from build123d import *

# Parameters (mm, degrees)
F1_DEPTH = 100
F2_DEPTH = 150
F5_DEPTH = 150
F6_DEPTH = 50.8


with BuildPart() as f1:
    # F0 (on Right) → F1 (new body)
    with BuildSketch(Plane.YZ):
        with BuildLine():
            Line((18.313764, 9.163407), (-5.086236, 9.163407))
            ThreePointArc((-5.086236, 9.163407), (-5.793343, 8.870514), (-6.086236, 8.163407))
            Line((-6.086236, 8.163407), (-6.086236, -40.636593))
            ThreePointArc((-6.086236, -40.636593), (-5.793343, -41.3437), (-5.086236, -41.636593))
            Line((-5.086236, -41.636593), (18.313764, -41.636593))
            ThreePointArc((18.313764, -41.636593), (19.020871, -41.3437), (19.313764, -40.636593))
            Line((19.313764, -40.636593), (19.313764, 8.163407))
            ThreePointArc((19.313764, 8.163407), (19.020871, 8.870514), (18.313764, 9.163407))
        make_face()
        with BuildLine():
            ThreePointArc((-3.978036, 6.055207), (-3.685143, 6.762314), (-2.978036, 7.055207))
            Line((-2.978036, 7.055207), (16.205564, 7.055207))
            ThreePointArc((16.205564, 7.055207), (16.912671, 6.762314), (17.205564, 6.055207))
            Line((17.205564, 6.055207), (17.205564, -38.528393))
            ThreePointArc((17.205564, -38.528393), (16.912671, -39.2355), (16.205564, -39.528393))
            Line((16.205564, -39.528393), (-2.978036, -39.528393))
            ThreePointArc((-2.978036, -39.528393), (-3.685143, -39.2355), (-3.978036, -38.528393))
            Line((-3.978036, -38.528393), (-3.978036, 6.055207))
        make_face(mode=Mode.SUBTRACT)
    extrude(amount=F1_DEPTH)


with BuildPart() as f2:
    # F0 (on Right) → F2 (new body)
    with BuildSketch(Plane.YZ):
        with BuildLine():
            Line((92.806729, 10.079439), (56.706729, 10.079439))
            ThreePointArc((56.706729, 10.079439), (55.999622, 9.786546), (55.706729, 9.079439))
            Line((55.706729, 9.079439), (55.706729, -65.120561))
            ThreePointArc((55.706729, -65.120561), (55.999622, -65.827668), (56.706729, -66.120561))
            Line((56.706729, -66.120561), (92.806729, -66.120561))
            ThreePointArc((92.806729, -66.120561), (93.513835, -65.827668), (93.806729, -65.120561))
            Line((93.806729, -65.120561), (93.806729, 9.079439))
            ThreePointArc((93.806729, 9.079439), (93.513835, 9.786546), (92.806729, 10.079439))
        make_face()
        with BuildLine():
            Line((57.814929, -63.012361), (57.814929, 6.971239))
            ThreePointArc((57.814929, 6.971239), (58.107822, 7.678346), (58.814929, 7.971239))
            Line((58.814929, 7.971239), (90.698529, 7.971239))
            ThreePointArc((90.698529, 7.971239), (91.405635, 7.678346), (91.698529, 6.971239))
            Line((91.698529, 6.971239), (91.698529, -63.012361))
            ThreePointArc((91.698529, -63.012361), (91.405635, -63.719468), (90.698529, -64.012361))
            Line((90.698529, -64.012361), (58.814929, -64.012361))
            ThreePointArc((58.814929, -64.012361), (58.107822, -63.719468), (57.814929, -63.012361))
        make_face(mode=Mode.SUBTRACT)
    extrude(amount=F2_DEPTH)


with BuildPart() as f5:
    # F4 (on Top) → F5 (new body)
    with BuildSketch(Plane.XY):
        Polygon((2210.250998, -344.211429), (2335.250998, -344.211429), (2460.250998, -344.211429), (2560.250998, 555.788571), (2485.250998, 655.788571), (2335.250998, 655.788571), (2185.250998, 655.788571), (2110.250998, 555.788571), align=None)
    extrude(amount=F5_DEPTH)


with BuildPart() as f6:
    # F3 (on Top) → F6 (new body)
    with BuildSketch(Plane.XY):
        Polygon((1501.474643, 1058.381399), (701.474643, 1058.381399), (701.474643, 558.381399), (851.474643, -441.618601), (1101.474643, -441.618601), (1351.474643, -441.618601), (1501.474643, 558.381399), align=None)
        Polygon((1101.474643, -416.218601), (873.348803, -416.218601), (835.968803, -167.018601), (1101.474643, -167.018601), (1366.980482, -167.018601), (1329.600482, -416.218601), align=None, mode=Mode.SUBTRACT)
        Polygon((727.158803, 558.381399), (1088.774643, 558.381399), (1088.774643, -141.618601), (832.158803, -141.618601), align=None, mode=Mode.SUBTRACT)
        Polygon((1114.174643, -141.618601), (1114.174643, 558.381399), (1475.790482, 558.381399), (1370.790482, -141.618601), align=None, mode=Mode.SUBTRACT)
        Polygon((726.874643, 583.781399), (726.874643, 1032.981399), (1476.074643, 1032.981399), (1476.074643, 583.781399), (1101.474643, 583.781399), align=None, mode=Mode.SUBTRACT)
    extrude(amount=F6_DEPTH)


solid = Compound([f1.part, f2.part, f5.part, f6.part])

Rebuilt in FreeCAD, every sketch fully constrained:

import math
import FreeCAD as App
import Part
import Sketcher
from FreeCAD import Vector

doc = App.newDocument("Part")
params = doc.addObject("Spreadsheet::Sheet", "Params")
for row, (alias, value) in enumerate([
    ("sketch1_radius", "0.999999 mm"),
    ("sketch1_width", "23.4 mm"),
    ("sketch1_height", "48.8 mm"),
    ("pad1_length", "100 mm"),
    ("sketch2_radius", "0.999999 mm"),
    ("sketch2_width", "36.1 mm"),
    ("sketch2_height", "74.2 mm"),
    ("pad2_length", "150 mm"),
    ("sketch3_width", "250 mm"),
    ("sketch3_width2", "300 mm"),
    ("sketch3_length", "125 mm"),
    ("pad3_length", "150 mm"),
    ("sketch4_width", "800 mm"),
    ("sketch4_width2", "500 mm"),
    ("sketch4_height", "700 mm"),
    ("sketch4_width3", "749.2 mm"),
    ("sketch4_height2", "449.2 mm"),
    ("pad4_length", "50.8 mm"),
], start=1):
    params.set(f"A{row}", alias)
    params.set(f"B{row}", "=" + value)
    params.setAlias(f"B{row}", alias)

body = doc.addObject("PartDesign::Body", "Body")

# Sketch on YZ plane
sketch1 = body.newObject("Sketcher::SketchObject", "Sketch")
sketch1.AttachmentSupport = (doc.getObject("YZ_Plane"), [""])
sketch1.MapMode = "FlatFace"
sketch1.addGeometry(Part.LineSegment(Vector(18.3, 9.2, 0), Vector(-5.1, 9.2, 0)), False)
sketch1.addGeometry(Part.ArcOfCircle(Part.Circle(Vector(-5.1, 8.2, 0), Vector(0, 0, 1), 1), math.radians(90), math.radians(180)), False)
sketch1.addGeometry(Part.LineSegment(Vector(-6.1, 8.2, 0), Vector(-6.1, -40.6, 0)), False)
sketch1.addGeometry(Part.ArcOfCircle(Part.Circle(Vector(-5.1, -40.6, 0), Vector(0, 0, 1), 1), math.radians(180), math.radians(270)), False)
sketch1.addGeometry(Part.LineSegment(Vector(-5.1, -41.6, 0), Vector(18.3, -41.6, 0)), False)
sketch1.addGeometry(Part.ArcOfCircle(Part.Circle(Vector(18.3, -40.6, 0), Vector(0, 0, 1), 1), math.radians(-90), math.radians(0)), False)
sketch1.addGeometry(Part.LineSegment(Vector(19.3, -40.6, 0), Vector(19.3, 8.2, 0)), False)
sketch1.addGeometry(Part.ArcOfCircle(Part.Circle(Vector(18.3, 8.2, 0), Vector(0, 0, 1), 1), math.radians(0), math.radians(90)), False)
sketch1.addGeometry(Part.LineSegment(Vector(-4, -38.5, 0), Vector(-4, 6.1, 0)), False)
sketch1.addGeometry(Part.ArcOfCircle(Part.Circle(Vector(-3, 6.1, 0), Vector(0, 0, 1), 1), math.radians(90), math.radians(180)), False)
sketch1.addGeometry(Part.LineSegment(Vector(-3, 7.1, 0), Vector(16.2, 7.1, 0)), False)
sketch1.addGeometry(Part.ArcOfCircle(Part.Circle(Vector(16.2, 6.1, 0), Vector(0, 0, 1), 1), math.radians(0), math.radians(90)), False)
sketch1.addGeometry(Part.LineSegment(Vector(17.2, 6.1, 0), Vector(17.2, -38.5, 0)), False)
sketch1.addGeometry(Part.ArcOfCircle(Part.Circle(Vector(16.2, -38.5, 0), Vector(0, 0, 1), 1), math.radians(-90), math.radians(0)), False)
sketch1.addGeometry(Part.LineSegment(Vector(16.2, -39.5, 0), Vector(-3, -39.5, 0)), False)
sketch1.addGeometry(Part.ArcOfCircle(Part.Circle(Vector(-3, -38.5, 0), Vector(0, 0, 1), 1), math.radians(180), math.radians(270)), False)
sketch1.addConstraint(Sketcher.Constraint("Tangent", 0, 2, 1, 1))
sketch1.addConstraint(Sketcher.Constraint("Tangent", 1, 2, 2, 1))
sketch1.addConstraint(Sketcher.Constraint("Tangent", 2, 2, 3, 1))
sketch1.addConstraint(Sketcher.Constraint("Tangent", 3, 2, 4, 1))
sketch1.addConstraint(Sketcher.Constraint("Tangent", 4, 2, 5, 1))
sketch1.addConstraint(Sketcher.Constraint("Tangent", 5, 2, 6, 1))
sketch1.addConstraint(Sketcher.Constraint("Tangent", 6, 2, 7, 1))
sketch1.addConstraint(Sketcher.Constraint("Tangent", 7, 2, 0, 1))
sketch1.addConstraint(Sketcher.Constraint("Tangent", 8, 2, 9, 2))
sketch1.addConstraint(Sketcher.Constraint("Tangent", 9, 1, 10, 1))
sketch1.addConstraint(Sketcher.Constraint("Tangent", 10, 2, 11, 2))
sketch1.addConstraint(Sketcher.Constraint("Tangent", 11, 1, 12, 1))
sketch1.addConstraint(Sketcher.Constraint("Tangent", 12, 2, 13, 2))
sketch1.addConstraint(Sketcher.Constraint("Tangent", 13, 1, 14, 1))
sketch1.addConstraint(Sketcher.Constraint("Tangent", 14, 2, 15, 2))
sketch1.addConstraint(Sketcher.Constraint("Tangent", 15, 1, 8, 1))
sketch1.addConstraint(Sketcher.Constraint("Horizontal", 0))
sketch1.addConstraint(Sketcher.Constraint("Vertical", 2))
sketch1.addConstraint(Sketcher.Constraint("Horizontal", 4))
sketch1.addConstraint(Sketcher.Constraint("Vertical", 6))
sketch1.addConstraint(Sketcher.Constraint("Vertical", 8))
sketch1.addConstraint(Sketcher.Constraint("Horizontal", 10))
sketch1.addConstraint(Sketcher.Constraint("Vertical", 12))
sketch1.addConstraint(Sketcher.Constraint("Horizontal", 14))
sketch1.addConstraint(Sketcher.Constraint("Equal", 1, 3))
sketch1.addConstraint(Sketcher.Constraint("Equal", 3, 5))
sketch1.addConstraint(Sketcher.Constraint("Equal", 5, 7))
sketch1.addConstraint(Sketcher.Constraint("Equal", 7, 9))
sketch1.addConstraint(Sketcher.Constraint("Equal", 9, 11))
sketch1.addConstraint(Sketcher.Constraint("Equal", 11, 13))
sketch1.addConstraint(Sketcher.Constraint("Equal", 13, 15))
sketch1.addConstraint(Sketcher.Constraint("Radius", 1, 0.999999))
sketch1.addConstraint(Sketcher.Constraint("DistanceX", 0, 2, 0, 1, 23.4))
sketch1.addConstraint(Sketcher.Constraint("DistanceY", 2, 2, 2, 1, 48.8))
sketch1.addConstraint(Sketcher.Constraint("DistanceX", 10, 1, 10, 2, 19.1836))
sketch1.addConstraint(Sketcher.Constraint("DistanceY", 8, 1, 8, 2, 44.5836))
sketch1.addConstraint(Sketcher.Constraint("DistanceX", 1, 3, 9, 3, 2.1082))
sketch1.addConstraint(Sketcher.Constraint("DistanceY", 9, 3, 1, 3, 2.1082))
sketch1.addConstraint(Sketcher.Constraint("DistanceX", 1, 3, -1, 1, 5.086237))
sketch1.addConstraint(Sketcher.Constraint("DistanceY", -1, 1, 1, 3, 8.163408))
sketch1.setExpression("Constraints[31]", "Params.sketch1_radius")
sketch1.setExpression("Constraints[32]", "Params.sketch1_width")
sketch1.setExpression("Constraints[33]", "Params.sketch1_height")
pad1 = body.newObject("PartDesign::Pad", "Pad")
pad1.Profile = sketch1
pad1.setExpression("Length", "Params.pad1_length")
body2 = doc.addObject("PartDesign::Body", "Body001")

# Sketch on YZ plane
sketch2 = body2.newObject("Sketcher::SketchObject", "Sketch001")
sketch2.AttachmentSupport = (doc.getObject("YZ_Plane001"), [""])
sketch2.MapMode = "FlatFace"
sketch2.addGeometry(Part.LineSegment(Vector(92.8, 10.1, 0), Vector(56.7, 10.1, 0)), False)
sketch2.addGeometry(Part.ArcOfCircle(Part.Circle(Vector(56.7, 9.1, 0), Vector(0, 0, 1), 1), math.radians(90), math.radians(180)), False)
sketch2.addGeometry(Part.LineSegment(Vector(55.7, 9.1, 0), Vector(55.7, -65.1, 0)), False)
sketch2.addGeometry(Part.ArcOfCircle(Part.Circle(Vector(56.7, -65.1, 0), Vector(0, 0, 1), 1), math.radians(180), math.radians(270)), False)
sketch2.addGeometry(Part.LineSegment(Vector(56.7, -66.1, 0), Vector(92.8, -66.1, 0)), False)
sketch2.addGeometry(Part.ArcOfCircle(Part.Circle(Vector(92.8, -65.1, 0), Vector(0, 0, 1), 1), math.radians(-90), math.radians(0)), False)
sketch2.addGeometry(Part.LineSegment(Vector(93.8, -65.1, 0), Vector(93.8, 9.1, 0)), False)
sketch2.addGeometry(Part.ArcOfCircle(Part.Circle(Vector(92.8, 9.1, 0), Vector(0, 0, 1), 1), math.radians(0), math.radians(90)), False)
sketch2.addGeometry(Part.ArcOfCircle(Part.Circle(Vector(58.8, -63, 0), Vector(0, 0, 1), 1), math.radians(180), math.radians(270)), False)
sketch2.addGeometry(Part.LineSegment(Vector(57.8, -63, 0), Vector(57.8, 7, 0)), False)
sketch2.addGeometry(Part.ArcOfCircle(Part.Circle(Vector(58.8, 7, 0), Vector(0, 0, 1), 1), math.radians(90), math.radians(180)), False)
sketch2.addGeometry(Part.LineSegment(Vector(58.8, 8, 0), Vector(90.7, 8, 0)), False)
sketch2.addGeometry(Part.ArcOfCircle(Part.Circle(Vector(90.7, 7, 0), Vector(0, 0, 1), 1), math.radians(0), math.radians(90)), False)
sketch2.addGeometry(Part.LineSegment(Vector(91.7, 7, 0), Vector(91.7, -63, 0)), False)
sketch2.addGeometry(Part.ArcOfCircle(Part.Circle(Vector(90.7, -63, 0), Vector(0, 0, 1), 1), math.radians(-90), math.radians(0)), False)
sketch2.addGeometry(Part.LineSegment(Vector(90.7, -64, 0), Vector(58.8, -64, 0)), False)
sketch2.addConstraint(Sketcher.Constraint("Tangent", 0, 2, 1, 1))
sketch2.addConstraint(Sketcher.Constraint("Tangent", 1, 2, 2, 1))
sketch2.addConstraint(Sketcher.Constraint("Tangent", 2, 2, 3, 1))
sketch2.addConstraint(Sketcher.Constraint("Tangent", 3, 2, 4, 1))
sketch2.addConstraint(Sketcher.Constraint("Tangent", 4, 2, 5, 1))
sketch2.addConstraint(Sketcher.Constraint("Tangent", 5, 2, 6, 1))
sketch2.addConstraint(Sketcher.Constraint("Tangent", 6, 2, 7, 1))
sketch2.addConstraint(Sketcher.Constraint("Tangent", 7, 2, 0, 1))
sketch2.addConstraint(Sketcher.Constraint("Tangent", 8, 1, 9, 1))
sketch2.addConstraint(Sketcher.Constraint("Tangent", 9, 2, 10, 2))
sketch2.addConstraint(Sketcher.Constraint("Tangent", 10, 1, 11, 1))
sketch2.addConstraint(Sketcher.Constraint("Tangent", 11, 2, 12, 2))
sketch2.addConstraint(Sketcher.Constraint("Tangent", 12, 1, 13, 1))
sketch2.addConstraint(Sketcher.Constraint("Tangent", 13, 2, 14, 2))
sketch2.addConstraint(Sketcher.Constraint("Tangent", 14, 1, 15, 1))
sketch2.addConstraint(Sketcher.Constraint("Tangent", 15, 2, 8, 2))
sketch2.addConstraint(Sketcher.Constraint("Horizontal", 0))
sketch2.addConstraint(Sketcher.Constraint("Vertical", 2))
sketch2.addConstraint(Sketcher.Constraint("Horizontal", 4))
sketch2.addConstraint(Sketcher.Constraint("Vertical", 6))
sketch2.addConstraint(Sketcher.Constraint("Vertical", 9))
sketch2.addConstraint(Sketcher.Constraint("Horizontal", 11))
sketch2.addConstraint(Sketcher.Constraint("Vertical", 13))
sketch2.addConstraint(Sketcher.Constraint("Horizontal", 15))
sketch2.addConstraint(Sketcher.Constraint("Equal", 1, 3))
sketch2.addConstraint(Sketcher.Constraint("Equal", 3, 5))
sketch2.addConstraint(Sketcher.Constraint("Equal", 5, 7))
sketch2.addConstraint(Sketcher.Constraint("Equal", 7, 8))
sketch2.addConstraint(Sketcher.Constraint("Equal", 8, 10))
sketch2.addConstraint(Sketcher.Constraint("Equal", 10, 12))
sketch2.addConstraint(Sketcher.Constraint("Equal", 12, 14))
sketch2.addConstraint(Sketcher.Constraint("Radius", 1, 0.999999))
sketch2.addConstraint(Sketcher.Constraint("DistanceX", 0, 2, 0, 1, 36.1))
sketch2.addConstraint(Sketcher.Constraint("DistanceY", 2, 2, 2, 1, 74.2))
sketch2.addConstraint(Sketcher.Constraint("DistanceX", 11, 1, 11, 2, 31.8836))
sketch2.addConstraint(Sketcher.Constraint("DistanceY", 9, 1, 9, 2, 69.9836))
sketch2.addConstraint(Sketcher.Constraint("DistanceX", 3, 3, 8, 3, 2.1082))
sketch2.addConstraint(Sketcher.Constraint("DistanceY", 3, 3, 8, 3, 2.1082))
sketch2.addConstraint(Sketcher.Constraint("DistanceX", -1, 1, 1, 3, 56.706728))
sketch2.addConstraint(Sketcher.Constraint("DistanceY", -1, 1, 1, 3, 9.07944))
sketch2.setExpression("Constraints[31]", "Params.sketch2_radius")
sketch2.setExpression("Constraints[32]", "Params.sketch2_width")
sketch2.setExpression("Constraints[33]", "Params.sketch2_height")
pad2 = body2.newObject("PartDesign::Pad", "Pad001")
pad2.Profile = sketch2
pad2.setExpression("Length", "Params.pad2_length")
body3 = doc.addObject("PartDesign::Body", "Body002")

# Sketch on XY plane
sketch3 = body3.newObject("Sketcher::SketchObject", "Sketch002")
sketch3.AttachmentSupport = (doc.getObject("XY_Plane002"), [""])
sketch3.MapMode = "FlatFace"
sketch3.addGeometry(Part.LineSegment(Vector(2210, -344, 0), Vector(2460, -344, 0)), False)
sketch3.addGeometry(Part.LineSegment(Vector(2460, -344, 0), Vector(2560, 556, 0)), False)
sketch3.addGeometry(Part.LineSegment(Vector(2560, 556, 0), Vector(2485, 656, 0)), False)
sketch3.addGeometry(Part.LineSegment(Vector(2485, 656, 0), Vector(2185, 656, 0)), False)
sketch3.addGeometry(Part.LineSegment(Vector(2185, 656, 0), Vector(2110, 556, 0)), False)
sketch3.addGeometry(Part.LineSegment(Vector(2110, 556, 0), Vector(2210, -344, 0)), False)
sketch3.addConstraint(Sketcher.Constraint("Coincident", 0, 2, 1, 1))
sketch3.addConstraint(Sketcher.Constraint("Coincident", 1, 2, 2, 1))
sketch3.addConstraint(Sketcher.Constraint("Coincident", 2, 2, 3, 1))
sketch3.addConstraint(Sketcher.Constraint("Coincident", 3, 2, 4, 1))
sketch3.addConstraint(Sketcher.Constraint("Coincident", 4, 2, 5, 1))
sketch3.addConstraint(Sketcher.Constraint("Coincident", 5, 2, 0, 1))
sketch3.addConstraint(Sketcher.Constraint("Horizontal", 0))
sketch3.addConstraint(Sketcher.Constraint("Horizontal", 3))
sketch3.addConstraint(Sketcher.Constraint("Horizontal", 1, 2, 4, 2))
sketch3.addConstraint(Sketcher.Constraint("Equal", 2, 4))
sketch3.addConstraint(Sketcher.Constraint("Equal", 1, 5))
sketch3.addConstraint(Sketcher.Constraint("DistanceX", 0, 1, 0, 2, 250.0))
sketch3.addConstraint(Sketcher.Constraint("DistanceX", 3, 2, 3, 1, 300.0))
sketch3.addConstraint(Sketcher.Constraint("Distance", 2, 125.0))
sketch3.addConstraint(Sketcher.Constraint("DistanceX", 0, 2, 1, 2, 100.0))
sketch3.addConstraint(Sketcher.Constraint("DistanceY", 0, 2, 1, 2, 900.0))
sketch3.addConstraint(Sketcher.Constraint("DistanceY", 0, 2, -1, 1, 344.211429))
sketch3.addConstraint(Sketcher.Constraint("DistanceX", -1, 1, 0, 2, 2460.250998))
sketch3.setExpression("Constraints[11]", "Params.sketch3_width")
sketch3.setExpression("Constraints[12]", "Params.sketch3_width2")
sketch3.setExpression("Constraints[13]", "Params.sketch3_length")
pad3 = body3.newObject("PartDesign::Pad", "Pad002")
pad3.Profile = sketch3
pad3.setExpression("Length", "Params.pad3_length")
body4 = doc.addObject("PartDesign::Body", "Body003")

# Sketch on XY plane
sketch4 = body4.newObject("Sketcher::SketchObject", "Sketch003")
sketch4.AttachmentSupport = (doc.getObject("XY_Plane003"), [""])
sketch4.MapMode = "FlatFace"
sketch4.addGeometry(Part.LineSegment(Vector(1501, 1058, 0), Vector(701, 1058, 0)), False)
sketch4.addGeometry(Part.LineSegment(Vector(701, 1058, 0), Vector(701, 558, 0)), False)
sketch4.addGeometry(Part.LineSegment(Vector(701, 558, 0), Vector(851, -442, 0)), False)
sketch4.addGeometry(Part.LineSegment(Vector(851, -442, 0), Vector(1351, -442, 0)), False)
sketch4.addGeometry(Part.LineSegment(Vector(1351, -442, 0), Vector(1501, 558, 0)), False)
sketch4.addGeometry(Part.LineSegment(Vector(1501, 558, 0), Vector(1501, 1058, 0)), False)
sketch4.addGeometry(Part.LineSegment(Vector(1330, -416, 0), Vector(873, -416, 0)), False)
sketch4.addGeometry(Part.LineSegment(Vector(873, -416, 0), Vector(836, -167, 0)), False)
sketch4.addGeometry(Part.LineSegment(Vector(836, -167, 0), Vector(1367, -167, 0)), False)
sketch4.addGeometry(Part.LineSegment(Vector(1367, -167, 0), Vector(1330, -416, 0)), False)
sketch4.addGeometry(Part.LineSegment(Vector(832, -142, 0), Vector(727, 558, 0)), False)
sketch4.addGeometry(Part.LineSegment(Vector(727, 558, 0), Vector(1089, 558, 0)), False)
sketch4.addGeometry(Part.LineSegment(Vector(1089, 558, 0), Vector(1089, -142, 0)), False)
sketch4.addGeometry(Part.LineSegment(Vector(1089, -142, 0), Vector(832, -142, 0)), False)
sketch4.addGeometry(Part.LineSegment(Vector(1371, -142, 0), Vector(1114, -142, 0)), False)
sketch4.addGeometry(Part.LineSegment(Vector(1114, -142, 0), Vector(1114, 558, 0)), False)
sketch4.addGeometry(Part.LineSegment(Vector(1114, 558, 0), Vector(1476, 558, 0)), False)
sketch4.addGeometry(Part.LineSegment(Vector(1476, 558, 0), Vector(1371, -142, 0)), False)
sketch4.addGeometry(Part.LineSegment(Vector(1476, 584, 0), Vector(727, 584, 0)), False)
sketch4.addGeometry(Part.LineSegment(Vector(727, 584, 0), Vector(727, 1033, 0)), False)
sketch4.addGeometry(Part.LineSegment(Vector(727, 1033, 0), Vector(1476, 1033, 0)), False)
sketch4.addGeometry(Part.LineSegment(Vector(1476, 1033, 0), Vector(1476, 584, 0)), False)
sketch4.addConstraint(Sketcher.Constraint("Coincident", 0, 2, 1, 1))
sketch4.addConstraint(Sketcher.Constraint("Coincident", 1, 2, 2, 1))
sketch4.addConstraint(Sketcher.Constraint("Coincident", 2, 2, 3, 1))
sketch4.addConstraint(Sketcher.Constraint("Coincident", 3, 2, 4, 1))
sketch4.addConstraint(Sketcher.Constraint("Coincident", 4, 2, 5, 1))
sketch4.addConstraint(Sketcher.Constraint("Coincident", 5, 2, 0, 1))
sketch4.addConstraint(Sketcher.Constraint("Coincident", 6, 2, 7, 1))
sketch4.addConstraint(Sketcher.Constraint("Coincident", 7, 2, 8, 1))
sketch4.addConstraint(Sketcher.Constraint("Coincident", 8, 2, 9, 1))
sketch4.addConstraint(Sketcher.Constraint("Coincident", 9, 2, 6, 1))
sketch4.addConstraint(Sketcher.Constraint("Coincident", 10, 2, 11, 1))
sketch4.addConstraint(Sketcher.Constraint("Coincident", 11, 2, 12, 1))
sketch4.addConstraint(Sketcher.Constraint("Coincident", 12, 2, 13, 1))
sketch4.addConstraint(Sketcher.Constraint("Coincident", 13, 2, 10, 1))
sketch4.addConstraint(Sketcher.Constraint("Coincident", 14, 2, 15, 1))
sketch4.addConstraint(Sketcher.Constraint("Coincident", 15, 2, 16, 1))
sketch4.addConstraint(Sketcher.Constraint("Coincident", 16, 2, 17, 1))
sketch4.addConstraint(Sketcher.Constraint("Coincident", 17, 2, 14, 1))
sketch4.addConstraint(Sketcher.Constraint("Coincident", 18, 2, 19, 1))
sketch4.addConstraint(Sketcher.Constraint("Coincident", 19, 2, 20, 1))
sketch4.addConstraint(Sketcher.Constraint("Coincident", 20, 2, 21, 1))
sketch4.addConstraint(Sketcher.Constraint("Coincident", 21, 2, 18, 1))
sketch4.addConstraint(Sketcher.Constraint("Horizontal", 0))
sketch4.addConstraint(Sketcher.Constraint("Vertical", 1))
sketch4.addConstraint(Sketcher.Constraint("Horizontal", 3))
sketch4.addConstraint(Sketcher.Constraint("Vertical", 5))
sketch4.addConstraint(Sketcher.Constraint("Horizontal", 6))
sketch4.addConstraint(Sketcher.Constraint("Horizontal", 8))
sketch4.addConstraint(Sketcher.Constraint("Horizontal", 11))
sketch4.addConstraint(Sketcher.Constraint("Vertical", 12))
sketch4.addConstraint(Sketcher.Constraint("Horizontal", 13))
sketch4.addConstraint(Sketcher.Constraint("Horizontal", 14))
sketch4.addConstraint(Sketcher.Constraint("Vertical", 15))
sketch4.addConstraint(Sketcher.Constraint("Horizontal", 16))
sketch4.addConstraint(Sketcher.Constraint("Horizontal", 18))
sketch4.addConstraint(Sketcher.Constraint("Vertical", 19))
sketch4.addConstraint(Sketcher.Constraint("Horizontal", 20))
sketch4.addConstraint(Sketcher.Constraint("Vertical", 21))
sketch4.addConstraint(Sketcher.Constraint("Parallel", 2, 7))
sketch4.addConstraint(Sketcher.Constraint("Parallel", 4, 9))
sketch4.addConstraint(Sketcher.Constraint("Parallel", 7, 10))
sketch4.addConstraint(Sketcher.Constraint("Parallel", 9, 17))
sketch4.addConstraint(Sketcher.Constraint("Horizontal", 1, 2, 4, 2))
sketch4.addConstraint(Sketcher.Constraint("Horizontal", 4, 2, 10, 2))
sketch4.addConstraint(Sketcher.Constraint("Horizontal", 13, 2, 14, 2))
sketch4.addConstraint(Sketcher.Constraint("Horizontal", 11, 2, 15, 2))
sketch4.addConstraint(Sketcher.Constraint("Equal", 13, 14))
sketch4.addConstraint(Sketcher.Constraint("Equal", 11, 16))
sketch4.addConstraint(Sketcher.Constraint("Equal", 3, 1))
sketch4.addConstraint(Sketcher.Constraint("DistanceX", 0, 2, 0, 1, 800.0))
sketch4.addConstraint(Sketcher.Constraint("DistanceX", 3, 1, 3, 2, 500.0))
sketch4.addConstraint(Sketcher.Constraint("DistanceY", 12, 2, 12, 1, 700.0))
sketch4.addConstraint(Sketcher.Constraint("DistanceX", 18, 2, 18, 1, 749.2))
sketch4.addConstraint(Sketcher.Constraint("DistanceY", 19, 1, 19, 2, 449.2))
sketch4.addConstraint(Sketcher.Constraint("DistanceY", 2, 2, 1, 2, 1000.0))
sketch4.addConstraint(Sketcher.Constraint("DistanceY", 2, 2, 6, 2, 25.4))
sketch4.addConstraint(Sketcher.Constraint("DistanceY", 6, 2, 7, 2, 249.2))
sketch4.addConstraint(Sketcher.Constraint("DistanceX", 1, 2, 11, 2, 387.3))
sketch4.addConstraint(Sketcher.Constraint("DistanceX", 12, 2, 14, 2, 25.4))
sketch4.addConstraint(Sketcher.Constraint("DistanceY", 10, 2, 18, 2, 25.4))
sketch4.addConstraint(Sketcher.Constraint("DistanceX", 1, 2, 18, 2, 25.4))
sketch4.addConstraint(Sketcher.Constraint("DistanceX", 10, 2, 7, 2, 108.81))
sketch4.addConstraint(Sketcher.Constraint("DistanceX", 8, 2, 16, 2, 108.81))
sketch4.addConstraint(Sketcher.Constraint("DistanceX", 6, 2, 6, 1, 456.251679))
sketch4.addConstraint(Sketcher.Constraint("DistanceY", -1, 1, 0, 2, 1058.381399))
sketch4.addConstraint(Sketcher.Constraint("DistanceX", -1, 1, 8, 2, 1366.980482))
sketch4.setExpression("Constraints[49]", "Params.sketch4_width")
sketch4.setExpression("Constraints[50]", "Params.sketch4_width2")
sketch4.setExpression("Constraints[51]", "Params.sketch4_height")
sketch4.setExpression("Constraints[52]", "Params.sketch4_width3")
sketch4.setExpression("Constraints[53]", "Params.sketch4_height2")
pad4 = body4.newObject("PartDesign::Pad", "Pad003")
pad4.Profile = sketch4
pad4.setExpression("Length", "Params.pad4_length")

doc.recompute()
